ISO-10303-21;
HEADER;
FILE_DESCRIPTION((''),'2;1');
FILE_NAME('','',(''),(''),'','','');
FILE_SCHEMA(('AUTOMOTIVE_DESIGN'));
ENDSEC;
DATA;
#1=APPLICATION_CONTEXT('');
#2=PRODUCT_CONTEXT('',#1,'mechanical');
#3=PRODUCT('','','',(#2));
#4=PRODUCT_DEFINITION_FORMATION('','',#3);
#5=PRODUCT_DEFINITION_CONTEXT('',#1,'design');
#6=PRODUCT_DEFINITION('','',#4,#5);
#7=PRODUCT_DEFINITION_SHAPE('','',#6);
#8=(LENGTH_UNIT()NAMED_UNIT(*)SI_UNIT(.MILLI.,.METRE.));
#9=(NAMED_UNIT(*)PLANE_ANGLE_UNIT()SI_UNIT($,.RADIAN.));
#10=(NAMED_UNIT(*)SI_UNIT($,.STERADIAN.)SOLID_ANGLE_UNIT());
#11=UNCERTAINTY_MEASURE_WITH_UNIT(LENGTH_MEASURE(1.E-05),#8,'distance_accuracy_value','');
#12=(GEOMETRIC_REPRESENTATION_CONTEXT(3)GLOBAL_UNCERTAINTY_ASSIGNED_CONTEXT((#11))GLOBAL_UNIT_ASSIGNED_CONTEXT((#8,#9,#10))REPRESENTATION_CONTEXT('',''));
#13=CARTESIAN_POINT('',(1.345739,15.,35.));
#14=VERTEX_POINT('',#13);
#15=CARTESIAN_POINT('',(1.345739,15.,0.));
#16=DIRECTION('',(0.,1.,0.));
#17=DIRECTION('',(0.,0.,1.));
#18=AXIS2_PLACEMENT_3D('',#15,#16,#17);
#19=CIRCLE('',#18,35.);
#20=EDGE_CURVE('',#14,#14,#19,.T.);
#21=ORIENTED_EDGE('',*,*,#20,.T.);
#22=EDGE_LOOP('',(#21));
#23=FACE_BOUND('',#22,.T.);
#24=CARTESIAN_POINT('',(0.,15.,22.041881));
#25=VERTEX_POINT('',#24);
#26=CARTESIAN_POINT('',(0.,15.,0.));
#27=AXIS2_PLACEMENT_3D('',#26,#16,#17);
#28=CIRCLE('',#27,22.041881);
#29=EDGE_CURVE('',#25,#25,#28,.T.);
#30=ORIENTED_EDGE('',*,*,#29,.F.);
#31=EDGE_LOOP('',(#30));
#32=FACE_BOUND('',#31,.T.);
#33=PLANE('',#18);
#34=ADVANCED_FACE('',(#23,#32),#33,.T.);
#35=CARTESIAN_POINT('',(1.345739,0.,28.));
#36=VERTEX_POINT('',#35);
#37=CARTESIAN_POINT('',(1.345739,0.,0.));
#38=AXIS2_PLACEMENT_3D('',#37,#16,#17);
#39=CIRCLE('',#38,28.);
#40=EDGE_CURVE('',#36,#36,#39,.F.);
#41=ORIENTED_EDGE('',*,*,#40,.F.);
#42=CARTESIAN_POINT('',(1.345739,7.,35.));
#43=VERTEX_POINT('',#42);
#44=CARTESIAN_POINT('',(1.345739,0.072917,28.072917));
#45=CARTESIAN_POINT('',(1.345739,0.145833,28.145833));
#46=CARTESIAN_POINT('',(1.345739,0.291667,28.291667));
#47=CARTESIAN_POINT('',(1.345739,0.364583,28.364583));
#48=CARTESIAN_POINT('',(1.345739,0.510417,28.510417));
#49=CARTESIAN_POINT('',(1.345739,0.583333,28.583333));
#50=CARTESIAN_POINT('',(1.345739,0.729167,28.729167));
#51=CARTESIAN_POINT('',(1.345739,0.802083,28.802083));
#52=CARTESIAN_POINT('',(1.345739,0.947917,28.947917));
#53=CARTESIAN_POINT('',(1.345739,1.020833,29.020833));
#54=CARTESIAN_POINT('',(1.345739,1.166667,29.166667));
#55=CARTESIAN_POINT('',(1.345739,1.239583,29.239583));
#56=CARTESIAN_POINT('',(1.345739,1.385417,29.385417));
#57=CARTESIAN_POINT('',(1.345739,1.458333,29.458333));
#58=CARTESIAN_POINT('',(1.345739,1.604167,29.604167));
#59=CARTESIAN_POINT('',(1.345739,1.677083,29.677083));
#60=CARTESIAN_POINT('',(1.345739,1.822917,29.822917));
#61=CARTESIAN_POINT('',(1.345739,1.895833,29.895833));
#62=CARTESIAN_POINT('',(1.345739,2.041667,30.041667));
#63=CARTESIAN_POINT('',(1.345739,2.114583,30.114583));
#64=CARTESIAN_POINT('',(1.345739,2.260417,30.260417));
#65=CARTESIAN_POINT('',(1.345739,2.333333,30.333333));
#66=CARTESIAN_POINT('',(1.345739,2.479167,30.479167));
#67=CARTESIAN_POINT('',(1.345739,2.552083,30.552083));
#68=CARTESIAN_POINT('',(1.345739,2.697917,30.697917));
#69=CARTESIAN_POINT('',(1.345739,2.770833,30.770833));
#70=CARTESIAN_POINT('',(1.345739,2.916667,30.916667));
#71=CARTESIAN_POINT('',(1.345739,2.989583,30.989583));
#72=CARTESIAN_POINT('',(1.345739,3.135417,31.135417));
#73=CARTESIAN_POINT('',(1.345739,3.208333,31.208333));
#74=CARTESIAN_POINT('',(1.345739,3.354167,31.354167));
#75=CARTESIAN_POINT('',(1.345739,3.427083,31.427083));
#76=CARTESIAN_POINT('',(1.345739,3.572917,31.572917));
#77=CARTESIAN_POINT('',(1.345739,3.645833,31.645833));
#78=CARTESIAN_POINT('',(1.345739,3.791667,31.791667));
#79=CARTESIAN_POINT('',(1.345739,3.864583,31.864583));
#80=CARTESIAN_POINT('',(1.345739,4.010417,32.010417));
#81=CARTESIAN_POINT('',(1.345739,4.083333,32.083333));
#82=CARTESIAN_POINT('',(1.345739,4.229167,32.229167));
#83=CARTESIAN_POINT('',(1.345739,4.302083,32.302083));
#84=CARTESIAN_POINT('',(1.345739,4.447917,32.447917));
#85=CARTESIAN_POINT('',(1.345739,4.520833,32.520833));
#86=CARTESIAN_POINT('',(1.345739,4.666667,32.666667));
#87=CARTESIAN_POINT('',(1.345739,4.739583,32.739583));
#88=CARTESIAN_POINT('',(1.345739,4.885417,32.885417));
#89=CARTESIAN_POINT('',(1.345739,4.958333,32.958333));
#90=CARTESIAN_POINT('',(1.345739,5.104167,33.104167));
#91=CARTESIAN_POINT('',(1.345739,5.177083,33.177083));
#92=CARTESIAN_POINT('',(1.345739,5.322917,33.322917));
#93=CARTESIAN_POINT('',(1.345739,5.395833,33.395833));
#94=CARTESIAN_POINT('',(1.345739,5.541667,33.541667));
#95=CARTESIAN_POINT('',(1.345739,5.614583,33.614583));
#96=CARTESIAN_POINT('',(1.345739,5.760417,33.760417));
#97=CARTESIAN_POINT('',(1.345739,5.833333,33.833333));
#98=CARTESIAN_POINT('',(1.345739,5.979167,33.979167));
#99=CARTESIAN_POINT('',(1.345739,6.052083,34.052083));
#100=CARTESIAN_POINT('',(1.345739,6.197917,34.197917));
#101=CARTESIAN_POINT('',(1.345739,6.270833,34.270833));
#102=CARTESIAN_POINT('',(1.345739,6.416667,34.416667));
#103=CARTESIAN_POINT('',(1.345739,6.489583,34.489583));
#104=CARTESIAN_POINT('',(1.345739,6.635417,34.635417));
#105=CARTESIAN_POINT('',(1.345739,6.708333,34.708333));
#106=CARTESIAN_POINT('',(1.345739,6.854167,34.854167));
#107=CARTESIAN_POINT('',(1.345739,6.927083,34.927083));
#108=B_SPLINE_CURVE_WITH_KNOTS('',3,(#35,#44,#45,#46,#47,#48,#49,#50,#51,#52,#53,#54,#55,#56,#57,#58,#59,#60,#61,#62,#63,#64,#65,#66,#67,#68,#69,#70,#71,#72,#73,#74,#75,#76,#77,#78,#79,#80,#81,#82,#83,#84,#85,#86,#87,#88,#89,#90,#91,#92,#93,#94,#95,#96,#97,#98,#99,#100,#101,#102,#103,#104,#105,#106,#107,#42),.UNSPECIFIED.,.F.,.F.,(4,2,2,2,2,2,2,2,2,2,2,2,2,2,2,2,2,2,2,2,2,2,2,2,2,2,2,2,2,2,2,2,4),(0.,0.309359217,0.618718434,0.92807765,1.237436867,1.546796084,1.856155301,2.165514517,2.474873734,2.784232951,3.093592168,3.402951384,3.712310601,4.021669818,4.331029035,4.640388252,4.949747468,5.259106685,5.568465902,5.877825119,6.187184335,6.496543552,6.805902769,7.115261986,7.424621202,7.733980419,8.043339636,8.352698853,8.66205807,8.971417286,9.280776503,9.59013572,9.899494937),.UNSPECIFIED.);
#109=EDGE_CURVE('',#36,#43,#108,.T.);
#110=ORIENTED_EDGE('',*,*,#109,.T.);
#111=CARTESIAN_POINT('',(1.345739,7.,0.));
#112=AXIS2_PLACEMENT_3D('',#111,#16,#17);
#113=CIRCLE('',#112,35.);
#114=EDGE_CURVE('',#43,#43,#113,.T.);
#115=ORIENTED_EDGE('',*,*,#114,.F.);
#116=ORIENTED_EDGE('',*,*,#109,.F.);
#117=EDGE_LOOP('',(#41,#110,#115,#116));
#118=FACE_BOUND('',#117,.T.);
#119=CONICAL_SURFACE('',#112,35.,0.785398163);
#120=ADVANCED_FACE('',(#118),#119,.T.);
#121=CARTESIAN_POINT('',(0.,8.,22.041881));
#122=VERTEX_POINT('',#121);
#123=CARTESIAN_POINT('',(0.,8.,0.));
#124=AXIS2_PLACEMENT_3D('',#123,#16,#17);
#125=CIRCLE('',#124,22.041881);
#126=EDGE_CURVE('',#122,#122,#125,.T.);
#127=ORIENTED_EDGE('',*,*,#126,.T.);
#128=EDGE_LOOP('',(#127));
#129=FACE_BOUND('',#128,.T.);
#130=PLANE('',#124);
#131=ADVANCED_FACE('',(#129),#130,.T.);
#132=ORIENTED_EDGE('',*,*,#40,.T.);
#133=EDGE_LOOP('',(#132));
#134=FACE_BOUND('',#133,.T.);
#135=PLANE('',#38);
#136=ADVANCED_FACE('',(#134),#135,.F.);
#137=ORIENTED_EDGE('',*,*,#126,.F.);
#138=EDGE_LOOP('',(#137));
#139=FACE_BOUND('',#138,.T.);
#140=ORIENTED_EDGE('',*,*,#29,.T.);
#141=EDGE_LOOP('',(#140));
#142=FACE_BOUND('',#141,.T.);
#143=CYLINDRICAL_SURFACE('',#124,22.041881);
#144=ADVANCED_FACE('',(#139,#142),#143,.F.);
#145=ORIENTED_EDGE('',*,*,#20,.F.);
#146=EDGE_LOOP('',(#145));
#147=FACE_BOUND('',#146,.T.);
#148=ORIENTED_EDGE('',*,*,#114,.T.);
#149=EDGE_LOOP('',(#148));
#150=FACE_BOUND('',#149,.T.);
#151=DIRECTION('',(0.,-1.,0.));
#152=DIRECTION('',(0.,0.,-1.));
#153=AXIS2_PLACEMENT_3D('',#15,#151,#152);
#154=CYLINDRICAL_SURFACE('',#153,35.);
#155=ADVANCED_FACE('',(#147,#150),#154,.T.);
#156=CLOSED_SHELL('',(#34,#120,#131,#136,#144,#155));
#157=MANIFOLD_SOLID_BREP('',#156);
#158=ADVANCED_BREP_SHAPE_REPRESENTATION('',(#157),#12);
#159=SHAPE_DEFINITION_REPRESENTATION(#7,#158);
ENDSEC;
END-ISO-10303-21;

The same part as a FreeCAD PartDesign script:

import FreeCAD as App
import Part
import Sketcher
from FreeCAD import Vector
Q = App.Units.Quantity


def edges_at(feature, points):
    """Names of the edges that pass closest to the given points."""
    edges = feature.Shape.Edges
    near = lambda p: min(range(len(edges)), key=lambda i: edges[i].distToShape(Part.Vertex(*p))[0])
    return sorted({f"Edge{near(p) + 1}" for p in points})

doc = App.newDocument("Part")
params = doc.addObject("Spreadsheet::Sheet", "Params")
for row, (alias, value) in enumerate([
    ("sketch1_diameter", "70 mm"),
    ("pad1_length", "15 mm"),
    ("chamfer_size", "7 mm"),
    ("pocket1_length", "7 mm"),
], start=1):
    params.set(f"A{row}", alias)
    params.set(f"B{row}", "=" + value)
    params.setAlias(f"B{row}", alias)

body = doc.addObject("PartDesign::Body", "Body")

# Sketch on XZ plane
sketch1 = body.newObject("Sketcher::SketchObject", "Sketch")
sketch1.AttachmentSupport = (doc.getObject("XZ_Plane"), [""])
sketch1.MapMode = "FlatFace"
sketch1.addGeometry(Part.Circle(Vector(1.345739, 0, 0), Vector(0, 0, 1), 35), False)
sketch1.addConstraint(Sketcher.Constraint("PointOnObject", 0, 3, -1))
sketch1.addConstraint(Sketcher.Constraint("Diameter", 0, Q("70 mm")))
sketch1.addConstraint(Sketcher.Constraint("DistanceX", -1, 1, 0, 3, Q("1.345739 mm")))
sketch1.setExpression("Constraints[1]", "Params.sketch1_diameter")
pad1 = body.newObject("PartDesign::Pad", "Pad")
pad1.Profile = sketch1
pad1.setExpression("Length", "Params.pad1_length")
pad1.Reversed = True
doc.recompute()

chamfer = body.newObject("PartDesign::Chamfer", "Chamfer")
chamfer.Base = (pad1, edges_at(pad1, [(1.346, 0, -35)]))
chamfer.setExpression("Size", "Params.chamfer_size")

# Sketch on XZ plane
sketch2 = body.newObject("Sketcher::SketchObject", "Sketch001")
sketch2.AttachmentSupport = (doc.getObject("XZ_Plane"), [""])
sketch2.MapMode = "FlatFace"
sketch2.AttachmentOffset = App.Placement(Vector(0, 0, -15), App.Rotation())
sketch2.addGeometry(Part.Circle(Vector(0, 0, 0), Vector(0, 0, 1), 22.041881), False)
sketch2.addConstraint(Sketcher.Constraint("Coincident", 0, 3, -1, 1))
sketch2.addConstraint(Sketcher.Constraint("Diameter", 0, Q("44.083762 mm")))
pocket1 = body.newObject("PartDesign::Pocket", "Pocket")
pocket1.Profile = sketch2
pocket1.setExpression("Length", "Params.pocket1_length")
pocket1.Reversed = True

doc.recompute()
